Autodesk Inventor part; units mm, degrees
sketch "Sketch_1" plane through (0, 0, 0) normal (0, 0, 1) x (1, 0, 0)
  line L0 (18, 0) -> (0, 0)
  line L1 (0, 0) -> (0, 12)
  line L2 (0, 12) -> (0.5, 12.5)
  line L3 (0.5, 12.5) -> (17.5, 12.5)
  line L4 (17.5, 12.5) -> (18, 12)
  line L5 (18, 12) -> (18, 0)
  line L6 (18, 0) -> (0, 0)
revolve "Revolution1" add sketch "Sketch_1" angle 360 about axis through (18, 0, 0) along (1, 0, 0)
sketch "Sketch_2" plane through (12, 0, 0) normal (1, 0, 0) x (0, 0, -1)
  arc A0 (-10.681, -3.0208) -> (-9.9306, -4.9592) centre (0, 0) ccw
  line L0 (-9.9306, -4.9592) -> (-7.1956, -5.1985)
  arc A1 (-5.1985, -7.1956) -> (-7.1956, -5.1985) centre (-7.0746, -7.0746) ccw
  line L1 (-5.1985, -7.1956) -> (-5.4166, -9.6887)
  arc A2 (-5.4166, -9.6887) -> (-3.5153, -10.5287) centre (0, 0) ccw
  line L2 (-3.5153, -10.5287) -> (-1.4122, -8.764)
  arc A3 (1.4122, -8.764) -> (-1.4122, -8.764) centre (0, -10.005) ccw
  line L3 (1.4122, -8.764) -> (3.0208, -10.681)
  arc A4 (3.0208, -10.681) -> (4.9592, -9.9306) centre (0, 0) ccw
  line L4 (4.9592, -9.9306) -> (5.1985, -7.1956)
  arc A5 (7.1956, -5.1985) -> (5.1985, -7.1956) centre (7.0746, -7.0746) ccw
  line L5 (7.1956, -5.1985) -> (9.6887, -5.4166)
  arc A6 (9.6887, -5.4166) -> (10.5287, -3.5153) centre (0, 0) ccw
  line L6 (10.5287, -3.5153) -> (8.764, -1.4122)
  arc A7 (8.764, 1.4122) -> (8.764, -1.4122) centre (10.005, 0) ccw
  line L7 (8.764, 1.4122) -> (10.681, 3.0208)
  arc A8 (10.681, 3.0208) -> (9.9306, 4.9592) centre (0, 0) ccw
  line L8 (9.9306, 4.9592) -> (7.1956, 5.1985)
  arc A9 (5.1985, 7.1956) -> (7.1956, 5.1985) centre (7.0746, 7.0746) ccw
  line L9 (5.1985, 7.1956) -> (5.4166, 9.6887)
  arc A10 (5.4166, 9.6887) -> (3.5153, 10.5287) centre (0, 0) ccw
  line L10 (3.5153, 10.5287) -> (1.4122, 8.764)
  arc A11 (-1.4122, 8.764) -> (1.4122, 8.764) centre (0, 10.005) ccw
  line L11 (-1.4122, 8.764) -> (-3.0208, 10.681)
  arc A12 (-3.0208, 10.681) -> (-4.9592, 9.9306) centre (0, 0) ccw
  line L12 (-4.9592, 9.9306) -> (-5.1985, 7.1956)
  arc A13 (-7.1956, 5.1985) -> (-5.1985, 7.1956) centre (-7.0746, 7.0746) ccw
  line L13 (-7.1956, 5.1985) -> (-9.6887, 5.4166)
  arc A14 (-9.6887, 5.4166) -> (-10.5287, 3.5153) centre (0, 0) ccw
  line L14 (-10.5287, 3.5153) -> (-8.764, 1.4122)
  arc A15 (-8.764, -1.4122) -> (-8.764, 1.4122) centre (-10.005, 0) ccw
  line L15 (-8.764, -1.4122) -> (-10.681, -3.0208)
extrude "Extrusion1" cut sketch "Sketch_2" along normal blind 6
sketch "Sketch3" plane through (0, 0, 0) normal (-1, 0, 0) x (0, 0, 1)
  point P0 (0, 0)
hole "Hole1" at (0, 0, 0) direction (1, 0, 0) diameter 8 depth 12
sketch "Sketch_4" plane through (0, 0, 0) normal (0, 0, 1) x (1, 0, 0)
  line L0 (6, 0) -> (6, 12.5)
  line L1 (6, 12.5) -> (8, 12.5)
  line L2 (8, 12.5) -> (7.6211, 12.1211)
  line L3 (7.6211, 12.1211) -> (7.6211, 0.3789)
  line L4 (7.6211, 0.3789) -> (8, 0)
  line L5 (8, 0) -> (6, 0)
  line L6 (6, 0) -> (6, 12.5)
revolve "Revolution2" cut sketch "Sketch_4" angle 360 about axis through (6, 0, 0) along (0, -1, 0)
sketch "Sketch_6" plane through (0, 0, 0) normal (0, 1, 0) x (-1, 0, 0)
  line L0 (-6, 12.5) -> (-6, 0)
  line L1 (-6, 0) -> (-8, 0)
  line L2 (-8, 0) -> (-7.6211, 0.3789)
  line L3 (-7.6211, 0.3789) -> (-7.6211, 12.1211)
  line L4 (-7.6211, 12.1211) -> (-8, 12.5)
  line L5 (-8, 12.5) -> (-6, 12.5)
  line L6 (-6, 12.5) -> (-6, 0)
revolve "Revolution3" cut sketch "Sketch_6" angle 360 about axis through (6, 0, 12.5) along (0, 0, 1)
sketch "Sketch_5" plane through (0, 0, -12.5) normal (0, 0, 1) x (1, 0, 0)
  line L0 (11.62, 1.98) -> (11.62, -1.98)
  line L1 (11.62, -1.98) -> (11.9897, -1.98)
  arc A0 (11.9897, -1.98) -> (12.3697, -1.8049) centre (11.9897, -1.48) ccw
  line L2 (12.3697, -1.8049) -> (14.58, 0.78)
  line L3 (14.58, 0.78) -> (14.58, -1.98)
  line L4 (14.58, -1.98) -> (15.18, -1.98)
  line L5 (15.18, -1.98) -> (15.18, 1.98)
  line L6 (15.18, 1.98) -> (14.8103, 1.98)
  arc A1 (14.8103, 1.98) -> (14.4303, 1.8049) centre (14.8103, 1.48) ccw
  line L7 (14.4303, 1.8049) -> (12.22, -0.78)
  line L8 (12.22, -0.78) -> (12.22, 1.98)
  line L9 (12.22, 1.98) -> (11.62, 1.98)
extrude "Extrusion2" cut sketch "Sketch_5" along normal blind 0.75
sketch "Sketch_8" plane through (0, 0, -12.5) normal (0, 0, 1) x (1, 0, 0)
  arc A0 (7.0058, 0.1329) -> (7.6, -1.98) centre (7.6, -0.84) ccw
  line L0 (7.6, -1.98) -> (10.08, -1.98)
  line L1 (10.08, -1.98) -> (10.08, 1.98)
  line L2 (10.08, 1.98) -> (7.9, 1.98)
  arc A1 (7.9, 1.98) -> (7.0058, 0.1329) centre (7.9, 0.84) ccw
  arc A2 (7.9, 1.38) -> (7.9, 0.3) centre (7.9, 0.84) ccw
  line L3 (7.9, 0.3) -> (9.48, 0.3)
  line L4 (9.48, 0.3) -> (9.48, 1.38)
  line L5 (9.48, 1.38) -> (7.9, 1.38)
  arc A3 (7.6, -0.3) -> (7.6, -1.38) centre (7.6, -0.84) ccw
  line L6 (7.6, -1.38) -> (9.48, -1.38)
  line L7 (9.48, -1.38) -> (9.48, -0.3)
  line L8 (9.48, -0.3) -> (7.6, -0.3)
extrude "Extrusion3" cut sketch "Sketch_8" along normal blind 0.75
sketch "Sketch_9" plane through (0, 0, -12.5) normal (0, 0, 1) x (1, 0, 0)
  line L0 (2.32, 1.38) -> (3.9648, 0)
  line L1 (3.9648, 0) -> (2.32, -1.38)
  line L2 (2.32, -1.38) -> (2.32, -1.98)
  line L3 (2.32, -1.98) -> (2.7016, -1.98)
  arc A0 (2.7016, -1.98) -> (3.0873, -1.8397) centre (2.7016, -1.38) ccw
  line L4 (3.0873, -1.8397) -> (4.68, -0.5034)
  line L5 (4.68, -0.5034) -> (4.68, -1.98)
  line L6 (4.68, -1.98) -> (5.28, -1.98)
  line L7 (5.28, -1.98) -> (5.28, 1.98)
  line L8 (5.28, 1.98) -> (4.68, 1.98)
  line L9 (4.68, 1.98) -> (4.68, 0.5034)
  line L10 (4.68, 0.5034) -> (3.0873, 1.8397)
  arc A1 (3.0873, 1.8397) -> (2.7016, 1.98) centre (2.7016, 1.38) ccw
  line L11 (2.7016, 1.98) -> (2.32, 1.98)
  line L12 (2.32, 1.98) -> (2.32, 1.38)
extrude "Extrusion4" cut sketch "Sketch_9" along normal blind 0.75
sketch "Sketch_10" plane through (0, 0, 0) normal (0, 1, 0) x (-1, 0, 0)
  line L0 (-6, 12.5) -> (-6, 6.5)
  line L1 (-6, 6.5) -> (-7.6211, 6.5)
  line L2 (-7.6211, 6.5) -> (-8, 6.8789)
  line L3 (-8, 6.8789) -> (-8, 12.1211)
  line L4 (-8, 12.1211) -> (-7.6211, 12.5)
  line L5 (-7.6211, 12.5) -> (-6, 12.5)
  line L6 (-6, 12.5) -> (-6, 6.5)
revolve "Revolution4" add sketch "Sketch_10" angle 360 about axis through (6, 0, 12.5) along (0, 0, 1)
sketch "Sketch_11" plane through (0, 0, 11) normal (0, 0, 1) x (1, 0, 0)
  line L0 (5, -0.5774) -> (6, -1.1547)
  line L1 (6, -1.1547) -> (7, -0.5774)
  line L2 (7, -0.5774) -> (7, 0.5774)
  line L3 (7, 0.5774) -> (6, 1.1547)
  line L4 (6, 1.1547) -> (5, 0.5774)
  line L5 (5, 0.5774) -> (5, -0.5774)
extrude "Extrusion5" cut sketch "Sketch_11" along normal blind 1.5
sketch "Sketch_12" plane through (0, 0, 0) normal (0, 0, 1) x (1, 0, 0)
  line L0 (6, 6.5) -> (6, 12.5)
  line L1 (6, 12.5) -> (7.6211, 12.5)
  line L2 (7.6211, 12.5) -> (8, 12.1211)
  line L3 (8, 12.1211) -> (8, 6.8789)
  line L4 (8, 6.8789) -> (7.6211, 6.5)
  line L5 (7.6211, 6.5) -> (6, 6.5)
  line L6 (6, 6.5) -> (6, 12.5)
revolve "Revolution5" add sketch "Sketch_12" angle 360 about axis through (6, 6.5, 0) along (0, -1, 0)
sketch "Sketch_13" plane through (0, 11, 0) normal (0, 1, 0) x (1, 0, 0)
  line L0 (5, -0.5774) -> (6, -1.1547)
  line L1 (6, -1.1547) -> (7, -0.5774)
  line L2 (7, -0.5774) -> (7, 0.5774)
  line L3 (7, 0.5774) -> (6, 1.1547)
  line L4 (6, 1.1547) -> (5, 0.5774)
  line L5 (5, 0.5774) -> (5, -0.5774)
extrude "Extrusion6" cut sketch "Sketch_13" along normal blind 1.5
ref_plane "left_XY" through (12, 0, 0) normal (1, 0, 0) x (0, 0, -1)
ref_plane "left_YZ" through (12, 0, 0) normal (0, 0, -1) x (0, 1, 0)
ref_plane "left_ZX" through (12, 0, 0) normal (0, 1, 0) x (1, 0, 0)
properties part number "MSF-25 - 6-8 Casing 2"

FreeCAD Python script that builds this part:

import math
import FreeCAD as App
import Part
import Sketcher
Q = App.Units.Quantity

doc = App.newDocument("Part")
body = doc.addObject("PartDesign::Body", "Body")

# Sketch on XY plane
sketch1 = doc.addObject("Sketcher::SketchObject", "Sketch")
body.addObject(sketch1)
sketch1.AttachmentSupport = (doc.XY_Plane, [""])
sketch1.MapMode = "FlatFace"
sketch1.addGeometry(Part.LineSegment(App.Vector(0, 0, 0), App.Vector(18, 0, 0)), False)
sketch1.addGeometry(Part.LineSegment(App.Vector(18, 0, 0), App.Vector(18, 12, 0)), False)
sketch1.addGeometry(Part.LineSegment(App.Vector(18, 12, 0), App.Vector(17.5, 12.5, 0)), False)
sketch1.addGeometry(Part.LineSegment(App.Vector(17.5, 12.5, 0), App.Vector(0.5, 12.5, 0)), False)
sketch1.addGeometry(Part.LineSegment(App.Vector(0.5, 12.5, 0), App.Vector(0, 12, 0)), False)
sketch1.addGeometry(Part.LineSegment(App.Vector(0, 12, 0), App.Vector(0, 0, 0)), False)
sketch1.addConstraint(Sketcher.Constraint("Coincident", 0, 2, 1, 1))
sketch1.addConstraint(Sketcher.Constraint("Coincident", 1, 2, 2, 1))
sketch1.addConstraint(Sketcher.Constraint("Coincident", 2, 2, 3, 1))
sketch1.addConstraint(Sketcher.Constraint("Coincident", 3, 2, 4, 1))
sketch1.addConstraint(Sketcher.Constraint("Coincident", 4, 2, 5, 1))
sketch1.addConstraint(Sketcher.Constraint("Coincident", 5, 2, 0, 1))
sketch1.addConstraint(Sketcher.Constraint("Horizontal", 0))
sketch1.addConstraint(Sketcher.Constraint("Vertical", 1))
sketch1.addConstraint(Sketcher.Constraint("Horizontal", 3))
sketch1.addConstraint(Sketcher.Constraint("Vertical", 5))
sketch1.addConstraint(Sketcher.Constraint("Coincident", 5, 2, -1, 1))
sketch1.addConstraint(Sketcher.Constraint("Perpendicular", 2, 4))
sketch1.addConstraint(Sketcher.Constraint("Horizontal", 1, 2, 4, 2))
sketch1.addConstraint(Sketcher.Constraint("Equal", 2, 4))
sketch1.addConstraint(Sketcher.Constraint("DistanceX", 0, 1, 0, 2, 18.0))
sketch1.addConstraint(Sketcher.Constraint("DistanceX", 3, 2, 3, 1, 17.0))
sketch1.addConstraint(Sketcher.Constraint("DistanceY", 1, 1, 1, 2, 12.0))
revolution = doc.addObject("PartDesign::Revolution", "Revolution")
body.addObject(revolution)
revolution.Profile = sketch1
revolution.ReferenceAxis = (sketch1, ["H_Axis"])
revolution.Angle = 360

# Sketch on YZ plane
sketch2 = doc.addObject("Sketcher::SketchObject", "Sketch001")
body.addObject(sketch2)
sketch2.AttachmentSupport = (doc.YZ_Plane, [""])
sketch2.MapMode = "FlatFace"
sketch2.AttachmentOffset = App.Placement(App.Vector(0, 0, 12), App.Rotation())
sketch2.addGeometry(Part.LineSegment(App.Vector(-1.4122, 8.764, 0), App.Vector(-3.0208, 10.681, 0)), False)
sketch2.addGeometry(Part.ArcOfCircle(Part.Circle(App.Vector(0.002421, -0.007245, 0), App.Vector(0, 0, 1), 11.107586), math.radians(105.793809), math.radians(116.531364)), False)
sketch2.addGeometry(Part.LineSegment(App.Vector(-4.9592, 9.9306, 0), App.Vector(-5.1985, 7.1956, 0)), False)
sketch2.addGeometry(Part.ArcOfCircle(Part.Circle(App.Vector(-7.0746, 7.0746, 0), App.Vector(0, 0, 1), 1.879998), math.radians(-93.690209), math.radians(3.690209)), False)
sketch2.addGeometry(Part.LineSegment(App.Vector(-7.1956, 5.1985, 0), App.Vector(-9.6887, 5.4166, 0)), False)
sketch2.addGeometry(Part.ArcOfCircle(Part.Circle(App.Vector(0.001812, -0.000904, 0), App.Vector(0, 0, 1), 11.102044), math.radians(150.792521), math.radians(161.53551)), False)
sketch2.addGeometry(Part.LineSegment(App.Vector(-10.5287, 3.5153, 0), App.Vector(-8.764, 1.4122, 0)), False)
sketch2.addGeometry(Part.ArcOfCircle(Part.Circle(App.Vector(-10.005, 0, 0), App.Vector(0, 0, 1), 1.879997), math.radians(-48.691941), math.radians(48.691941)), False)
sketch2.addGeometry(Part.LineSegment(App.Vector(-8.764, -1.4122, 0), App.Vector(-10.681, -3.0208, 0)), False)
sketch2.addGeometry(Part.ArcOfCircle(Part.Circle(App.Vector(0.007245, 0.002421, 0), App.Vector(0, 0, 1), 11.107586), math.radians(-164.206191), math.radians(-153.468636)), False)
sketch2.addGeometry(Part.LineSegment(App.Vector(-9.9306, -4.9592, 0), App.Vector(-7.1956, -5.1985, 0)), False)
sketch2.addGeometry(Part.ArcOfCircle(Part.Circle(App.Vector(-7.0746, -7.0746, 0), App.Vector(0, 0, 1), 1.879998), math.radians(-3.690209), math.radians(93.690209)), False)
sketch2.addGeometry(Part.LineSegment(App.Vector(-5.1985, -7.1956, 0), App.Vector(-5.4166, -9.6887, 0)), False)
sketch2.addGeometry(Part.ArcOfCircle(Part.Circle(App.Vector(0.000904, 0.001812, 0), App.Vector(0, 0, 1), 11.102044), math.radians(-119.207479), math.radians(-108.46449)), False)
sketch2.addGeometry(Part.LineSegment(App.Vector(-3.5153, -10.5287, 0), App.Vector(-1.4122, -8.764, 0)), False)
sketch2.addGeometry(Part.ArcOfCircle(Part.Circle(App.Vector(0, -10.005, 0), App.Vector(0, 0, 1), 1.879997), math.radians(41.308059), math.radians(138.691941)), False)
sketch2.addGeometry(Part.LineSegment(App.Vector(1.4122, -8.764, 0), App.Vector(3.0208, -10.681, 0)), False)
sketch2.addGeometry(Part.ArcOfCircle(Part.Circle(App.Vector(-0.002421, 0.007245, 0), App.Vector(0, 0, 1), 11.107586), math.radians(-74.206191), math.radians(-63.468636)), False)
sketch2.addGeometry(Part.LineSegment(App.Vector(4.9592, -9.9306, 0), App.Vector(5.1985, -7.1956, 0)), False)
sketch2.addGeometry(Part.ArcOfCircle(Part.Circle(App.Vector(7.0746, -7.0746, 0), App.Vector(0, 0, 1), 1.879998), math.radians(86.309791), math.radians(183.690209)), False)
sketch2.addGeometry(Part.LineSegment(App.Vector(7.1956, -5.1985, 0), App.Vector(9.6887, -5.4166, 0)), False)
sketch2.addGeometry(Part.ArcOfCircle(Part.Circle(App.Vector(-0.001812, 0.000904, 0), App.Vector(0, 0, 1), 11.102044), math.radians(-29.207479), math.radians(-18.46449)), False)
sketch2.addGeometry(Part.LineSegment(App.Vector(10.5287, -3.5153, 0), App.Vector(8.764, -1.4122, 0)), False)
sketch2.addGeometry(Part.ArcOfCircle(Part.Circle(App.Vector(10.005, 0, 0), App.Vector(0, 0, 1), 1.879997), math.radians(131.308059), math.radians(228.691941)), False)
sketch2.addGeometry(Part.LineSegment(App.Vector(8.764, 1.4122, 0), App.Vector(10.681, 3.0208, 0)), False)
sketch2.addGeometry(Part.ArcOfCircle(Part.Circle(App.Vector(-0.007245, -0.002421, 0), App.Vector(0, 0, 1), 11.107586), math.radians(15.793809), math.radians(26.531364)), False)
sketch2.addGeometry(Part.LineSegment(App.Vector(9.9306, 4.9592, 0), App.Vector(7.1956, 5.1985, 0)), False)
sketch2.addGeometry(Part.ArcOfCircle(Part.Circle(App.Vector(7.0746, 7.0746, 0), App.Vector(0, 0, 1), 1.879998), math.radians(176.309791), math.radians(273.690209)), False)
sketch2.addGeometry(Part.LineSegment(App.Vector(5.1985, 7.1956, 0), App.Vector(5.4166, 9.6887, 0)), False)
sketch2.addGeometry(Part.ArcOfCircle(Part.Circle(App.Vector(-0.000904, -0.001812, 0), App.Vector(0, 0, 1), 11.102044), math.radians(60.792521), math.radians(71.53551)), False)
sketch2.addGeometry(Part.LineSegment(App.Vector(3.5153, 10.5287, 0), App.Vector(1.4122, 8.764, 0)), False)
sketch2.addGeometry(Part.ArcOfCircle(Part.Circle(App.Vector(0, 10.005, 0), App.Vector(0, 0, 1), 1.879997), math.radians(-138.691941), math.radians(-41.308059)), False)
sketch2.addConstraint(Sketcher.Constraint("Coincident", 0, 2, 1, 1))
sketch2.addConstraint(Sketcher.Constraint("Coincident", 1, 2, 2, 1))
sketch2.addConstraint(Sketcher.Constraint("Coincident", 2, 2, 3, 2))
sketch2.addConstraint(Sketcher.Constraint("Coincident", 3, 1, 4, 1))
sketch2.addConstraint(Sketcher.Constraint("Coincident", 4, 2, 5, 1))
sketch2.addConstraint(Sketcher.Constraint("Coincident", 5, 2, 6, 1))
sketch2.addConstraint(Sketcher.Constraint("Coincident", 6, 2, 7, 2))
sketch2.addConstraint(Sketcher.Constraint("Coincident", 7, 1, 8, 1))
sketch2.addConstraint(Sketcher.Constraint("Coincident", 8, 2, 9, 1))
sketch2.addConstraint(Sketcher.Constraint("Coincident", 9, 2, 10, 1))
sketch2.addConstraint(Sketcher.Constraint("Coincident", 10, 2, 11, 2))
sketch2.addConstraint(Sketcher.Constraint("Coincident", 11, 1, 12, 1))
sketch2.addConstraint(Sketcher.Constraint("Coincident", 12, 2, 13, 1))
sketch2.addConstraint(Sketcher.Constraint("Coincident", 13, 2, 14, 1))
sketch2.addConstraint(Sketcher.Constraint("Coincident", 14, 2, 15, 2))
sketch2.addConstraint(Sketcher.Constraint("Coincident", 15, 1, 16, 1))
sketch2.addConstraint(Sketcher.Constraint("Coincident", 16, 2, 17, 1))
sketch2.addConstraint(Sketcher.Constraint("Coincident", 17, 2, 18, 1))
sketch2.addConstraint(Sketcher.Constraint("Coincident", 18, 2, 19, 2))
sketch2.addConstraint(Sketcher.Constraint("Coincident", 19, 1, 20, 1))
sketch2.addConstraint(Sketcher.Constraint("Coincident", 20, 2, 21, 1))
sketch2.addConstraint(Sketcher.Constraint("Coincident", 21, 2, 22, 1))
sketch2.addConstraint(Sketcher.Constraint("Coincident", 22, 2, 23, 2))
sketch2.addConstraint(Sketcher.Constraint("Coincident", 23, 1, 24, 1))
sketch2.addConstraint(Sketcher.Constraint("Coincident", 24, 2, 25, 1))
sketch2.addConstraint(Sketcher.Constraint("Coincident", 25, 2, 26, 1))
sketch2.addConstraint(Sketcher.Constraint("Coincident", 26, 2, 27, 2))
sketch2.addConstraint(Sketcher.Constraint("Coincident", 27, 1, 28, 1))
sketch2.addConstraint(Sketcher.Constraint("Coincident", 28, 2, 29, 1))
sketch2.addConstraint(Sketcher.Constraint("Coincident", 29, 2, 30, 1))
sketch2.addConstraint(Sketcher.Constraint("Coincident", 30, 2, 31, 2))
sketch2.addConstraint(Sketcher.Constraint("Coincident", 31, 1, 0, 1))
sketch2.addConstraint(Sketcher.Constraint("Equal", 3, 7))
sketch2.addConstraint(Sketcher.Constraint("Equal", 1, 9))
sketch2.addConstraint(Sketcher.Constraint("Equal", 7, 11))
sketch2.addConstraint(Sketcher.Constraint("Equal", 5, 13))
sketch2.addConstraint(Sketcher.Constraint("Equal", 11, 15))
sketch2.addConstraint(Sketcher.Constraint("Equal", 9, 17))
sketch2.addConstraint(Sketcher.Constraint("Equal", 15, 19))
sketch2.addConstraint(Sketcher.Constraint("Equal", 13, 21))
sketch2.addConstraint(Sketcher.Constraint("Equal", 19, 23))
sketch2.addConstraint(Sketcher.Constraint("Equal", 17, 25))
sketch2.addConstraint(Sketcher.Constraint("Equal", 23, 27))
sketch2.addConstraint(Sketcher.Constraint("Equal", 21, 29))
sketch2.addConstraint(Sketcher.Constraint("Equal", 27, 31))
sketch2.addConstraint(Sketcher.Constraint("Symmetric", 1, 3, 17, 3, -1, 1))
sketch2.addConstraint(Sketcher.Constraint("Symmetric", 3, 3, 19, 3, -1, 1))
sketch2.addConstraint(Sketcher.Constraint("Symmetric", 5, 3, 21, 3, -1, 1))
sketch2.addConstraint(Sketcher.Constraint("Symmetric", 7, 3, 23, 3, -1, 1))
sketch2.addConstraint(Sketcher.Constraint("Symmetric", 9, 3, 25, 3, -1, 1))
sketch2.addConstraint(Sketcher.Constraint("Symmetric", 11, 3, 27, 3, -1, 1))
sketch2.addConstraint(Sketcher.Constraint("Symmetric", 13, 3, 29, 3, -1, 1))
sketch2.addConstraint(Sketcher.Constraint("Symmetric", 15, 3, 31, 3, -1, 1))
sketch2.addConstraint(Sketcher.Constraint("Symmetric", 11, 3, 19, 3, -2))
sketch2.addConstraint(Sketcher.Constraint("Symmetric", 14, 2, 15, 1, -2))
sketch2.addConstraint(Sketcher.Constraint("Symmetric", 7, 1, 22, 2, -2))
sketch2.addConstraint(Sketcher.Constraint("Perpendicular", 2, 4))
sketch2.addConstraint(Sketcher.Constraint("Parallel", 0, 6))
sketch2.addConstraint(Sketcher.Constraint("Perpendicular", 6, 8))
sketch2.addConstraint(Sketcher.Constraint("Parallel", 4, 10))
sketch2.addConstraint(Sketcher.Constraint("Perpendicular", 10, 12))
sketch2.addConstraint(Sketcher.Constraint("Parallel", 8, 14))
sketch2.addConstraint(Sketcher.Constraint("Perpendicular", 14, 16))
sketch2.addConstraint(Sketcher.Constraint("Parallel", 12, 18))
sketch2.addConstraint(Sketcher.Constraint("Perpendicular", 18, 20))
sketch2.addConstraint(Sketcher.Constraint("Parallel", 16, 22))
sketch2.addConstraint(Sketcher.Constraint("Perpendicular", 22, 24))
sketch2.addConstraint(Sketcher.Constraint("Parallel", 20, 26))
sketch2.addConstraint(Sketcher.Constraint("Perpendicular", 26, 28))
sketch2.addConstraint(Sketcher.Constraint("Parallel", 24, 30))
sketch2.addConstraint(Sketcher.Constraint("Horizontal", 11, 1, 18, 2))
sketch2.addConstraint(Sketcher.Constraint("Horizontal", 10, 2, 19, 1))
sketch2.addConstraint(Sketcher.Constraint("Horizontal", 6, 2, 23, 1))
sketch2.addConstraint(Sketcher.Constraint("Horizontal", 3, 1, 26, 2))
sketch2.addConstraint(Sketcher.Constraint("Horizontal", 2, 2, 27, 1))
sketch2.addConstraint(Sketcher.Constraint("Horizontal", 30, 2, 31, 1))
sketch2.addConstraint(Sketcher.Constraint("Vertical", 6, 2, 7, 1))
sketch2.addConstraint(Sketcher.Constraint("Vertical", 3, 1, 10, 2))
sketch2.addConstraint(Sketcher.Constraint("Vertical", 2, 2, 11, 1))
sketch2.addConstraint(Sketcher.Constraint("Vertical", 15, 1, 30, 2))
sketch2.addConstraint(Sketcher.Constraint("Equal", 0, 4))
sketch2.addConstraint(Sketcher.Constraint("Equal", 2, 6))
sketch2.addConstraint(Sketcher.Constraint("Equal", 4, 8))
sketch2.addConstraint(Sketcher.Constraint("Equal", 6, 10))
sketch2.addConstraint(Sketcher.Constraint("Equal", 8, 12))
sketch2.addConstraint(Sketcher.Constraint("Equal", 10, 14))
sketch2.addConstraint(Sketcher.Constraint("Angle", 0, Q("130.0008 deg")))
sketch2.addConstraint(Sketcher.Constraint("Angle", 2, Q("-95.0004 deg")))
sketch2.addConstraint(Sketcher.Constraint("Radius", 3, 1.88))
sketch2.addConstraint(Sketcher.Constraint("Radius", 5, 11.102))
sketch2.addConstraint(Sketcher.Constraint("Radius", 1, 11.1076))
sketch2.addConstraint(Sketcher.Constraint("DistanceX", 5, 2, 4, 2, 0.84))
sketch2.addConstraint(Sketcher.Constraint("DistanceY", 13, 2, 12, 2, 0.84))
sketch2.addConstraint(Sketcher.Constraint("DistanceY", 5, 3, -1, 1, 0.001))
sketch2.addConstraint(Sketcher.Constraint("DistanceX", 7, 3, -1, 1, 10.005))
sketch2.addConstraint(Sketcher.Constraint("DistanceX", -1, 1, 13, 3, 0.001))
sketch2.addConstraint(Sketcher.Constraint("DistanceY", 15, 3, -1, 1, 10.005))
sketch2.addConstraint(Sketcher.Constraint("DistanceY", -1, 1, 0, 2, 10.681))
sketch2.addConstraint(Sketcher.Constraint("DistanceX", 6, 2, -1, 1, 8.764))
sketch2.addConstraint(Sketcher.Constraint("DistanceX", 8, 2, -1, 1, 10.681))
sketch2.addConstraint(Sketcher.Constraint("DistanceX", 3, 3, 1, 3, 7.077))
pocket1 = doc.addObject("PartDesign::Pocket", "Pocket")
body.addObject(pocket1)
pocket1.Profile = sketch2
pocket1.Length = 6
pocket1.Reversed = True

# Sketch on YZ plane
sketch3 = doc.addObject("Sketcher::SketchObject", "Sketch002")
body.addObject(sketch3)
sketch3.AttachmentSupport = (doc.YZ_Plane, [""])
sketch3.MapMode = "FlatFace"
sketch3.addGeometry(Part.Circle(App.Vector(0, 0, 0), App.Vector(0, 0, 1), 4), False)
sketch3.addConstraint(Sketcher.Constraint("Coincident", 0, 3, -1, 1))
sketch3.addConstraint(Sketcher.Constraint("Diameter", 0, 8.0))
doc.recompute()
hole = doc.addObject("PartDesign::Hole", "Hole")
body.addObject(hole)
hole.Profile = sketch3
hole.ThreadType = "None"
hole.Diameter = 8
hole.DepthType = "Dimension"
hole.Depth = 12
hole.DrillPoint = "Flat"
hole.Reversed = True

# Sketch on XY plane
sketch4 = doc.addObject("Sketcher::SketchObject", "Sketch003")
body.addObject(sketch4)
sketch4.AttachmentSupport = (doc.XY_Plane, [""])
sketch4.MapMode = "FlatFace"
sketch4.addGeometry(Part.LineSegment(App.Vector(6, 12.5, 0), App.Vector(6, 0, 0)), False)
sketch4.addGeometry(Part.LineSegment(App.Vector(6, 0, 0), App.Vector(8, 0, 0)), False)
sketch4.addGeometry(Part.LineSegment(App.Vector(8, 0, 0), App.Vector(7.6, 0.4, 0)), False)
sketch4.addGeometry(Part.LineSegment(App.Vector(7.6, 0.4, 0), App.Vector(7.6, 12.1, 0)), False)
sketch4.addGeometry(Part.LineSegment(App.Vector(7.6, 12.1, 0), App.Vector(8, 12.5, 0)), False)
sketch4.addGeometry(Part.LineSegment(App.Vector(8, 12.5, 0), App.Vector(6, 12.5, 0)), False)
sketch4.addGeometry(Part.LineSegment(App.Vector(6, 12.5, 0), App.Vector(6, 0, 0)), True)  # axis
sketch4.addConstraint(Sketcher.Constraint("Coincident", 0, 2, 1, 1))
sketch4.addConstraint(Sketcher.Constraint("Coincident", 1, 2, 2, 1))
sketch4.addConstraint(Sketcher.Constraint("Coincident", 2, 2, 3, 1))
sketch4.addConstraint(Sketcher.Constraint("Coincident", 3, 2, 4, 1))
sketch4.addConstraint(Sketcher.Constraint("Coincident", 4, 2, 5, 1))
sketch4.addConstraint(Sketcher.Constraint("Coincident", 5, 2, 0, 1))
sketch4.addConstraint(Sketcher.Constraint("Vertical", 0))
sketch4.addConstraint(Sketcher.Constraint("Horizontal", 1))
sketch4.addConstraint(Sketcher.Constraint("Vertical", 3))
sketch4.addConstraint(Sketcher.Constraint("Horizontal", 5))
sketch4.addConstraint(Sketcher.Constraint("Vertical", 6))
sketch4.addConstraint(Sketcher.Constraint("Coincident", 6, 1, 5, 2))
sketch4.addConstraint(Sketcher.Constraint("PointOnObject", 0, 2, -1))
sketch4.addConstraint(Sketcher.Constraint("PointOnObject", 6, 2, -1))
sketch4.addConstraint(Sketcher.Constraint("Perpendicular", 2, 4))
sketch4.addConstraint(Sketcher.Constraint("Vertical", 1, 2, 4, 2))
sketch4.addConstraint(Sketcher.Constraint("Equal", 2, 4))
sketch4.addConstraint(Sketcher.Constraint("DistanceX", 1, 1, 1, 2, 2.0))
sketch4.addConstraint(Sketcher.Constraint("DistanceY", 0, 2, 0, 1, 12.5))
sketch4.addConstraint(Sketcher.Constraint("DistanceX", -1, 1, 0, 2, 6.0))
sketch4.addConstraint(Sketcher.Constraint("DistanceY", 3, 1, 3, 2, 11.7422))
groove = doc.addObject("PartDesign::Groove", "Groove")
body.addObject(groove)
groove.Profile = sketch4
groove.ReferenceAxis = (sketch4, ["Axis0"])
groove.Angle = 360

# Sketch on XZ plane
sketch5 = doc.addObject("Sketcher::SketchObject", "Sketch004")
body.addObject(sketch5)
sketch5.AttachmentSupport = (doc.XZ_Plane, [""])
sketch5.MapMode = "FlatFace"
sketch5.addGeometry(Part.LineSegment(App.Vector(6, 0, 0), App.Vector(6, 12.5, 0)), False)
sketch5.addGeometry(Part.LineSegment(App.Vector(6, 12.5, 0), App.Vector(8, 12.5, 0)), False)
sketch5.addGeometry(Part.LineSegment(App.Vector(8, 12.5, 0), App.Vector(7.6, 12.1, 0)), False)
sketch5.addGeometry(Part.LineSegment(App.Vector(7.6, 12.1, 0), App.Vector(7.6, 0.4, 0)), False)
sketch5.addGeometry(Part.LineSegment(App.Vector(7.6, 0.4, 0), App.Vector(8, 0, 0)), False)
sketch5.addGeometry(Part.LineSegment(App.Vector(8, 0, 0), App.Vector(6, 0, 0)), False)
sketch5.addGeometry(Part.LineSegment(App.Vector(6, 0, 0), App.Vector(6, 12.5, 0)), True)  # axis
sketch5.addConstraint(Sketcher.Constraint("Coincident", 0, 2, 1, 1))
sketch5.addConstraint(Sketcher.Constraint("Coincident", 1, 2, 2, 1))
sketch5.addConstraint(Sketcher.Constraint("Coincident", 2, 2, 3, 1))
sketch5.addConstraint(Sketcher.Constraint("Coincident", 3, 2, 4, 1))
sketch5.addConstraint(Sketcher.Constraint("Coincident", 4, 2, 5, 1))
sketch5.addConstraint(Sketcher.Constraint("Coincident", 5, 2, 0, 1))
sketch5.addConstraint(Sketcher.Constraint("Vertical", 0))
sketch5.addConstraint(Sketcher.Constraint("Horizontal", 1))
sketch5.addConstraint(Sketcher.Constraint("Vertical", 3))
sketch5.addConstraint(Sketcher.Constraint("Horizontal", 5))
sketch5.addConstraint(Sketcher.Constraint("Vertical", 6))
sketch5.addConstraint(Sketcher.Constraint("Coincident", 6, 1, 5, 2))
sketch5.addConstraint(Sketcher.Constraint("PointOnObject", 4, 2, -1))
sketch5.addConstraint(Sketcher.Constraint("Perpendicular", 2, 4))
sketch5.addConstraint(Sketcher.Constraint("Horizontal", 1, 2, 6, 2))
sketch5.addConstraint(Sketcher.Constraint("Vertical", 1, 2, 4, 2))
sketch5.addConstraint(Sketcher.Constraint("Equal", 2, 4))
sketch5.addConstraint(Sketcher.Constraint("DistanceX", 1, 1, 1, 2, 2.0))
sketch5.addConstraint(Sketcher.Constraint("DistanceY", 0, 1, 0, 2, 12.5))
sketch5.addConstraint(Sketcher.Constraint("DistanceX", -1, 1, 0, 2, 6.0))
sketch5.addConstraint(Sketcher.Constraint("DistanceY", 3, 2, 3, 1, 11.7422))
groove2 = doc.addObject("PartDesign::Groove", "Groove001")
body.addObject(groove2)
groove2.Profile = sketch5
groove2.ReferenceAxis = (sketch5, ["Axis0"])
groove2.Angle = 360

# Sketch on XY plane
sketch6 = doc.addObject("Sketcher::SketchObject", "Sketch005")
body.addObject(sketch6)
sketch6.AttachmentSupport = (doc.XY_Plane, [""])
sketch6.MapMode = "FlatFace"
sketch6.AttachmentOffset = App.Placement(App.Vector(0, 0, -12.5), App.Rotation())
sketch6.addGeometry(Part.LineSegment(App.Vector(12.22, 1.98, 0), App.Vector(11.62, 1.98, 0)), False)
sketch6.addGeometry(Part.LineSegment(App.Vector(11.62, 1.98, 0), App.Vector(11.62, -1.98, 0)), False)
sketch6.addGeometry(Part.LineSegment(App.Vector(11.62, -1.98, 0), App.Vector(11.99, -1.98, 0)), False)
sketch6.addGeometry(Part.ArcOfCircle(Part.Circle(App.Vector(11.99, -1.48, 0), App.Vector(0, 0, 1), 0.5), math.radians(-90), math.radians(-41)), False)
sketch6.addGeometry(Part.LineSegment(App.Vector(12.37, -1.8, 0), App.Vector(14.58, 0.78, 0)), False)
sketch6.addGeometry(Part.LineSegment(App.Vector(14.58, 0.78, 0), App.Vector(14.58, -1.98, 0)), False)
sketch6.addGeometry(Part.LineSegment(App.Vector(14.58, -1.98, 0), App.Vector(15.18, -1.98, 0)), False)
sketch6.addGeometry(Part.LineSegment(App.Vector(15.18, -1.98, 0), App.Vector(15.18, 1.98, 0)), False)
sketch6.addGeometry(Part.LineSegment(App.Vector(15.18, 1.98, 0), App.Vector(14.81, 1.98, 0)), False)
sketch6.addGeometry(Part.ArcOfCircle(Part.Circle(App.Vector(14.81, 1.48, 0), App.Vector(0, 0, 1), 0.5), math.radians(90), math.radians(139)), False)
sketch6.addGeometry(Part.LineSegment(App.Vector(14.43, 1.8, 0), App.Vector(12.22, -0.78, 0)), False)
sketch6.addGeometry(Part.LineSegment(App.Vector(12.22, -0.78, 0), App.Vector(12.22, 1.98, 0)), False)
sketch6.addConstraint(Sketcher.Constraint("Coincident", 0, 2, 1, 1))
sketch6.addConstraint(Sketcher.Constraint("Coincident", 1, 2, 2, 1))
sketch6.addConstraint(Sketcher.Constraint("Tangent", 2, 2, 3, 1))
sketch6.addConstraint(Sketcher.Constraint("Tangent", 3, 2, 4, 1))
sketch6.addConstraint(Sketcher.Constraint("Coincident", 4, 2, 5, 1))
sketch6.addConstraint(Sketcher.Constraint("Coincident", 5, 2, 6, 1))
sketch6.addConstraint(Sketcher.Constraint("Coincident", 6, 2, 7, 1))
sketch6.addConstraint(Sketcher.Constraint("Coincident", 7, 2, 8, 1))
sketch6.addConstraint(Sketcher.Constraint("Tangent", 8, 2, 9, 1))
sketch6.addConstraint(Sketcher.Constraint("Tangent", 9, 2, 10, 1))
sketch6.addConstraint(Sketcher.Constraint("Coincident", 10, 2, 11, 1))
sketch6.addConstraint(Sketcher.Constraint("Coincident", 11, 2, 0, 1))
sketch6.addConstraint(Sketcher.Constraint("Horizontal", 0))
sketch6.addConstraint(Sketcher.Constraint("Vertical", 1))
sketch6.addConstraint(Sketcher.Constraint("Horizontal", 2))
sketch6.addConstraint(Sketcher.Constraint("Vertical", 5))
sketch6.addConstraint(Sketcher.Constraint("Horizontal", 6))
sketch6.addConstraint(Sketcher.Constraint("Vertical", 7))
sketch6.addConstraint(Sketcher.Constraint("Horizontal", 8))
sketch6.addConstraint(Sketcher.Constraint("Vertical", 11))
sketch6.addConstraint(Sketcher.Constraint("Equal", 3, 9))
sketch6.addConstraint(Sketcher.Constraint("Parallel", 4, 10))
sketch6.addConstraint(Sketcher.Constraint("Horizontal", 2, 2, 5, 2))
sketch6.addConstraint(Sketcher.Constraint("Horizontal", 0, 2, 7, 2))
sketch6.addConstraint(Sketcher.Constraint("Equal", 0, 6))
sketch6.addConstraint(Sketcher.Constraint("Equal", 2, 8))
sketch6.addConstraint(Sketcher.Constraint("Radius", 3, 0.5))
sketch6.addConstraint(Sketcher.Constraint("DistanceX", 0, 2, 0, 1, 0.6))
sketch6.addConstraint(Sketcher.Constraint("DistanceY", 1, 2, 1, 1, 3.96))
sketch6.addConstraint(Sketcher.Constraint("DistanceY", 5, 2, 5, 1, 2.76))
sketch6.addConstraint(Sketcher.Constraint("DistanceY", 3, 3, -1, 1, 1.48))
sketch6.addConstraint(Sketcher.Constraint("DistanceX", -1, 1, 0, 2, 11.62))
sketch6.addConstraint(Sketcher.Constraint("DistanceX", -1, 1, 4, 2, 14.58))
sketch6.addConstraint(Sketcher.Constraint("DistanceX", 2, 2, 3, 2, 0.38))
pocket2 = doc.addObject("PartDesign::Pocket", "Pocket001")
body.addObject(pocket2)
pocket2.Profile = sketch6
pocket2.Length = 0.75
pocket2.Reversed = True

# Sketch on XY plane
sketch7 = doc.addObject("Sketcher::SketchObject", "Sketch006")
body.addObject(sketch7)
sketch7.AttachmentSupport = (doc.XY_Plane, [""])
sketch7.MapMode = "FlatFace"
sketch7.AttachmentOffset = App.Placement(App.Vector(0, 0, -12.5), App.Rotation())
sketch7.addGeometry(Part.ArcOfCircle(Part.Circle(App.Vector(7.9, 0.8, 0), App.Vector(0, 0, 1), 1.1), math.radians(90), math.radians(218)), False)
sketch7.addGeometry(Part.ArcOfCircle(Part.Circle(App.Vector(7.6, -0.8, 0), App.Vector(0, 0, 1), 1.1), math.radians(121), math.radians(270)), False)
sketch7.addGeometry(Part.LineSegment(App.Vector(7.6, -2, 0), App.Vector(10.1, -2, 0)), False)
sketch7.addGeometry(Part.LineSegment(App.Vector(10.1, -2, 0), App.Vector(10.1, 2, 0)), False)
sketch7.addGeometry(Part.LineSegment(App.Vector(10.1, 2, 0), App.Vector(7.9, 2, 0)), False)
sketch7.addGeometry(Part.ArcOfCircle(Part.Circle(App.Vector(7.6, -0.8, 0), App.Vector(0, 0, 1), 0.5), math.radians(90), math.radians(270)), False)
sketch7.addGeometry(Part.LineSegment(App.Vector(7.6, -0.3, 0), App.Vector(9.5, -0.3, 0)), False)
sketch7.addGeometry(Part.LineSegment(App.Vector(9.5, -0.3, 0), App.Vector(9.5, -1.4, 0)), False)
sketch7.addGeometry(Part.LineSegment(App.Vector(9.5, -1.4, 0), App.Vector(7.6, -1.4, 0)), False)
sketch7.addGeometry(Part.ArcOfCircle(Part.Circle(App.Vector(7.9, 0.8, 0), App.Vector(0, 0, 1), 0.5), math.radians(90), math.radians(270)), False)
sketch7.addGeometry(Part.LineSegment(App.Vector(7.9, 1.4, 0), App.Vector(9.5, 1.4, 0)), False)
sketch7.addGeometry(Part.LineSegment(App.Vector(9.5, 1.4, 0), App.Vector(9.5, 0.3, 0)), False)
sketch7.addGeometry(Part.LineSegment(App.Vector(9.5, 0.3, 0), App.Vector(7.9, 0.3, 0)), False)
sketch7.addConstraint(Sketcher.Constraint("Coincident", 0, 2, 1, 1))
sketch7.addConstraint(Sketcher.Constraint("Tangent", 1, 2, 2, 1))
sketch7.addConstraint(Sketcher.Constraint("Coincident", 2, 2, 3, 1))
sketch7.addConstraint(Sketcher.Constraint("Coincident", 3, 2, 4, 1))
sketch7.addConstraint(Sketcher.Constraint("Tangent", 4, 2, 0, 1))
sketch7.addConstraint(Sketcher.Constraint("Tangent", 5, 1, 6, 1))
sketch7.addConstraint(Sketcher.Constraint("Coincident", 6, 2, 7, 1))
sketch7.addConstraint(Sketcher.Constraint("Coincident", 7, 2, 8, 1))
sketch7.addConstraint(Sketcher.Constraint("Tangent", 8, 2, 5, 2))
sketch7.addConstraint(Sketcher.Constraint("Tangent", 9, 1, 10, 1))
sketch7.addConstraint(Sketcher.Constraint("Coincident", 10, 2, 11, 1))
sketch7.addConstraint(Sketcher.Constraint("Coincident", 11, 2, 12, 1))
sketch7.addConstraint(Sketcher.Constraint("Tangent", 12, 2, 9, 2))
sketch7.addConstraint(Sketcher.Constraint("Horizontal", 2))
sketch7.addConstraint(Sketcher.Constraint("Vertical", 3))
sketch7.addConstraint(Sketcher.Constraint("Horizontal", 4))
sketch7.addConstraint(Sketcher.Constraint("Horizontal", 6))
sketch7.addConstraint(Sketcher.Constraint("Vertical", 7))
sketch7.addConstraint(Sketcher.Constraint("Horizontal", 8))
sketch7.addConstraint(Sketcher.Constraint("Horizontal", 10))
sketch7.addConstraint(Sketcher.Constraint("Vertical", 11))
sketch7.addConstraint(Sketcher.Constraint("Horizontal", 12))
sketch7.addConstraint(Sketcher.Constraint("Coincident", 5, 3, 1, 3))
sketch7.addConstraint(Sketcher.Constraint("Coincident", 9, 3, 0, 3))
sketch7.addConstraint(Sketcher.Constraint("Equal", 0, 1))
sketch7.addConstraint(Sketcher.Constraint("Equal", 5, 9))
sketch7.addConstraint(Sketcher.Constraint("Symmetric", 7, 2, 10, 2, -1))
sketch7.addConstraint(Sketcher.Constraint("Radius", 0, 1.14))
sketch7.addConstraint(Sketcher.Constraint("Radius", 5, 0.54))
sketch7.addConstraint(Sketcher.Constraint("DistanceX", 2, 1, 2, 2, 2.48))
sketch7.addConstraint(Sketcher.Constraint("DistanceX", 4, 2, 4, 1, 2.18))
sketch7.addConstraint(Sketcher.Constraint("DistanceX", 6, 1, 6, 2, 1.88))
sketch7.addConstraint(Sketcher.Constraint("DistanceY", 3, 1, 3, 2, 3.96))
sketch7.addConstraint(Sketcher.Constraint("DistanceX", -1, 1, 0, 3, 7.9))
pocket3 = doc.addObject("PartDesign::Pocket", "Pocket002")
body.addObject(pocket3)
pocket3.Profile = sketch7
pocket3.Length = 0.75
pocket3.Reversed = True

# Sketch on XY plane
sketch8 = doc.addObject("Sketcher::SketchObject", "Sketch007")
body.addObject(sketch8)
sketch8.AttachmentSupport = (doc.XY_Plane, [""])
sketch8.MapMode = "FlatFace"
sketch8.AttachmentOffset = App.Placement(App.Vector(0, 0, -12.5), App.Rotation())
sketch8.addGeometry(Part.LineSegment(App.Vector(2.32, 1.98, 0), App.Vector(2.32, 1.38, 0)), False)
sketch8.addGeometry(Part.LineSegment(App.Vector(2.32, 1.38, 0), App.Vector(3.96, 0, 0)), False)
sketch8.addGeometry(Part.LineSegment(App.Vector(3.96, 0, 0), App.Vector(2.32, -1.38, 0)), False)
sketch8.addGeometry(Part.LineSegment(App.Vector(2.32, -1.38, 0), App.Vector(2.32, -1.98, 0)), False)
sketch8.addGeometry(Part.LineSegment(App.Vector(2.32, -1.98, 0), App.Vector(2.7, -1.98, 0)), False)
sketch8.addGeometry(Part.ArcOfCircle(Part.Circle(App.Vector(2.7, -1.38, 0), App.Vector(0, 0, 1), 0.6), math.radians(-90), math.radians(-50)), False)
sketch8.addGeometry(Part.LineSegment(App.Vector(3.09, -1.84, 0), App.Vector(4.68, -0.5, 0)), False)
sketch8.addGeometry(Part.LineSegment(App.Vector(4.68, -0.5, 0), App.Vector(4.68, -1.98, 0)), False)
sketch8.addGeometry(Part.LineSegment(App.Vector(4.68, -1.98, 0), App.Vector(5.28, -1.98, 0)), False)
sketch8.addGeometry(Part.LineSegment(App.Vector(5.28, -1.98, 0), App.Vector(5.28, 1.98, 0)), False)
sketch8.addGeometry(Part.LineSegment(App.Vector(5.28, 1.98, 0), App.Vector(4.68, 1.98, 0)), False)
sketch8.addGeometry(Part.LineSegment(App.Vector(4.68, 1.98, 0), App.Vector(4.68, 0.5, 0)), False)
sketch8.addGeometry(Part.LineSegment(App.Vector(4.68, 0.5, 0), App.Vector(3.09, 1.84, 0)), False)
sketch8.addGeometry(Part.ArcOfCircle(Part.Circle(App.Vector(2.7, 1.38, 0), App.Vector(0, 0, 1), 0.6), math.radians(50), math.radians(90)), False)
sketch8.addGeometry(Part.LineSegment(App.Vector(2.7, 1.98, 0), App.Vector(2.32, 1.98, 0)), False)
sketch8.addConstraint(Sketcher.Constraint("Coincident", 0, 2, 1, 1))
sketch8.addConstraint(Sketcher.Constraint("Coincident", 1, 2, 2, 1))
sketch8.addConstraint(Sketcher.Constraint("Coincident", 2, 2, 3, 1))
sketch8.addConstraint(Sketcher.Constraint("Coincident", 3, 2, 4, 1))
sketch8.addConstraint(Sketcher.Constraint("Tangent", 4, 2, 5, 1))
sketch8.addConstraint(Sketcher.Constraint("Tangent", 5, 2, 6, 1))
sketch8.addConstraint(Sketcher.Constraint("Coincident", 6, 2, 7, 1))
sketch8.addConstraint(Sketcher.Constraint("Coincident", 7, 2, 8, 1))
sketch8.addConstraint(Sketcher.Constraint("Coincident", 8, 2, 9, 1))
sketch8.addConstraint(Sketcher.Constraint("Coincident", 9, 2, 10, 1))
sketch8.addConstraint(Sketcher.Constraint("Coincident", 10, 2, 11, 1))
sketch8.addConstraint(Sketcher.Constraint("Coincident", 11, 2, 12, 1))
sketch8.addConstraint(Sketcher.Constraint("Tangent", 12, 2, 13, 1))
sketch8.addConstraint(Sketcher.Constraint("Tangent", 13, 2, 14, 1))
sketch8.addConstraint(Sketcher.Constraint("Coincident", 14, 2, 0, 1))
sketch8.addConstraint(Sketcher.Constraint("Vertical", 0))
sketch8.addConstraint(Sketcher.Constraint("Vertical", 3))
sketch8.addConstraint(Sketcher.Constraint("Horizontal", 4))
sketch8.addConstraint(Sketcher.Constraint("Vertical", 7))
sketch8.addConstraint(Sketcher.Constraint("Horizontal", 8))
sketch8.addConstraint(Sketcher.Constraint("Vertical", 9))
sketch8.addConstraint(Sketcher.Constraint("Horizontal", 10))
sketch8.addConstraint(Sketcher.Constraint("Vertical", 11))
sketch8.addConstraint(Sketcher.Constraint("Horizontal", 14))
sketch8.addConstraint(Sketcher.Constraint("Equal", 5, 13))
sketch8.addConstraint(Sketcher.Constraint("Symmetric", 5, 3, 13, 3, -1))
sketch8.addConstraint(Sketcher.Constraint("Symmetric", 0, 2, 2, 2, -1))
sketch8.addConstraint(Sketcher.Constraint("Symmetric", 7, 2, 10, 2, -1))
sketch8.addConstraint(Sketcher.Constraint("PointOnObject", 1, 2, -1))
sketch8.addConstraint(Sketcher.Constraint("Parallel", 2, 6))
sketch8.addConstraint(Sketcher.Constraint("Parallel", 1, 12))
sketch8.addConstraint(Sketcher.Constraint("Horizontal", 13, 3, 0, 2))
sketch8.addConstraint(Sketcher.Constraint("Horizontal", 4, 2, 7, 2))
sketch8.addConstraint(Sketcher.Constraint("Equal", 10, 0))
sketch8.addConstraint(Sketcher.Constraint("Radius", 5, 0.6))
sketch8.addConstraint(Sketcher.Constraint("DistanceY", 9, 1, 9, 2, 3.96))
sketch8.addConstraint(Sketcher.Constraint("DistanceX", -1, 1, 0, 2, 2.32))
sketch8.addConstraint(Sketcher.Constraint("DistanceX", -1, 1, 6, 2, 4.68))
sketch8.addConstraint(Sketcher.Constraint("Distance", 1, 2.147))
sketch8.addConstraint(Sketcher.Constraint("Distance", 6, 2.079))
pocket4 = doc.addObject("PartDesign::Pocket", "Pocket003")
body.addObject(pocket4)
pocket4.Profile = sketch8
pocket4.Length = 0.75
pocket4.Reversed = True

# Sketch on XZ plane
sketch9 = doc.addObject("Sketcher::SketchObject", "Sketch008")
body.addObject(sketch9)
sketch9.AttachmentSupport = (doc.XZ_Plane, [""])
sketch9.MapMode = "FlatFace"
sketch9.addGeometry(Part.LineSegment(App.Vector(6, 6.5, 0), App.Vector(6, 12.5, 0)), False)
sketch9.addGeometry(Part.LineSegment(App.Vector(6, 12.5, 0), App.Vector(7.6, 12.5, 0)), False)
sketch9.addGeometry(Part.LineSegment(App.Vector(7.6, 12.5, 0), App.Vector(8, 12.1, 0)), False)
sketch9.addGeometry(Part.LineSegment(App.Vector(8, 12.1, 0), App.Vector(8, 6.9, 0)), False)
sketch9.addGeometry(Part.LineSegment(App.Vector(8, 6.9, 0), App.Vector(7.6, 6.5, 0)), False)
sketch9.addGeometry(Part.LineSegment(App.Vector(7.6, 6.5, 0), App.Vector(6, 6.5, 0)), False)
sketch9.addGeometry(Part.LineSegment(App.Vector(6, 6.5, 0), App.Vector(6, 12.5, 0)), True)  # axis
sketch9.addConstraint(Sketcher.Constraint("Coincident", 0, 2, 1, 1))
sketch9.addConstraint(Sketcher.Constraint("Coincident", 1, 2, 2, 1))
sketch9.addConstraint(Sketcher.Constraint("Coincident", 2, 2, 3, 1))
sketch9.addConstraint(Sketcher.Constraint("Coincident", 3, 2, 4, 1))
sketch9.addConstraint(Sketcher.Constraint("Coincident", 4, 2, 5, 1))
sketch9.addConstraint(Sketcher.Constraint("Coincident", 5, 2, 0, 1))
sketch9.addConstraint(Sketcher.Constraint("Vertical", 0))
sketch9.addConstraint(Sketcher.Constraint("Horizontal", 1))
sketch9.addConstraint(Sketcher.Constraint("Vertical", 3))
sketch9.addConstraint(Sketcher.Constraint("Horizontal", 5))
sketch9.addConstraint(Sketcher.Constraint("Vertical", 6))
sketch9.addConstraint(Sketcher.Constraint("Coincident", 6, 1, 5, 2))
sketch9.addConstraint(Sketcher.Constraint("Perpendicular", 2, 4))
sketch9.addConstraint(Sketcher.Constraint("Horizontal", 1, 2, 6, 2))
sketch9.addConstraint(Sketcher.Constraint("Vertical", 1, 2, 4, 2))
sketch9.addConstraint(Sketcher.Constraint("Equal", 2, 4))
sketch9.addConstraint(Sketcher.Constraint("DistanceY", 0, 1, 0, 2, 6.0))
sketch9.addConstraint(Sketcher.Constraint("DistanceX", -1, 1, 0, 2, 6.0))
sketch9.addConstraint(Sketcher.Constraint("DistanceX", -1, 1, 2, 2, 8.0))
sketch9.addConstraint(Sketcher.Constraint("DistanceY", -1, 1, 0, 2, 12.5))
sketch9.addConstraint(Sketcher.Constraint("DistanceX", 1, 1, 1, 2, 1.621))
revolution2 = doc.addObject("PartDesign::Revolution", "Revolution001")
body.addObject(revolution2)
revolution2.Profile = sketch9
revolution2.ReferenceAxis = (sketch9, ["Axis0"])
revolution2.Angle = 360

# Sketch on XY plane
sketch10 = doc.addObject("Sketcher::SketchObject", "Sketch009")
body.addObject(sketch10)
sketch10.AttachmentSupport = (doc.XY_Plane, [""])
sketch10.MapMode = "FlatFace"
sketch10.AttachmentOffset = App.Placement(App.Vector(0, 0, 11), App.Rotation())
sketch10.addGeometry(Part.LineSegment(App.Vector(5, 0.6, 0), App.Vector(5, -0.6, 0)), False)
sketch10.addGeometry(Part.LineSegment(App.Vector(5, -0.6, 0), App.Vector(6, -1.2, 0)), False)
sketch10.addGeometry(Part.LineSegment(App.Vector(6, -1.2, 0), App.Vector(7, -0.6, 0)), False)
sketch10.addGeometry(Part.LineSegment(App.Vector(7, -0.6, 0), App.Vector(7, 0.6, 0)), False)
sketch10.addGeometry(Part.LineSegment(App.Vector(7, 0.6, 0), App.Vector(6, 1.2, 0)), False)
sketch10.addGeometry(Part.LineSegment(App.Vector(6, 1.2, 0), App.Vector(5, 0.6, 0)), False)
sketch10.addConstraint(Sketcher.Constraint("Coincident", 0, 2, 1, 1))
sketch10.addConstraint(Sketcher.Constraint("Coincident", 1, 2, 2, 1))
sketch10.addConstraint(Sketcher.Constraint("Coincident", 2, 2, 3, 1))
sketch10.addConstraint(Sketcher.Constraint("Coincident", 3, 2, 4, 1))
sketch10.addConstraint(Sketcher.Constraint("Coincident", 4, 2, 5, 1))
sketch10.addConstraint(Sketcher.Constraint("Coincident", 5, 2, 0, 1))
sketch10.addConstraint(Sketcher.Constraint("Vertical", 0))
sketch10.addConstraint(Sketcher.Constraint("Vertical", 3))
sketch10.addConstraint(Sketcher.Constraint("Symmetric", 1, 2, 4, 2, -1))
sketch10.addConstraint(Sketcher.Constraint("Parallel", 1, 4))
sketch10.addConstraint(Sketcher.Constraint("Parallel", 2, 5))
sketch10.addConstraint(Sketcher.Constraint("Horizontal", 0, 2, 2, 2))
sketch10.addConstraint(Sketcher.Constraint("Horizontal", 3, 2, 5, 2))
sketch10.addConstraint(Sketcher.Constraint("DistanceX", -1, 1, 0, 2, 5.0))
sketch10.addConstraint(Sketcher.Constraint("DistanceX", -1, 1, 1, 2, 6.0))
sketch10.addConstraint(Sketcher.Constraint("DistanceY", 0, 2, 0, 1, 1.1548))
sketch10.addConstraint(Sketcher.Constraint("DistanceY", 1, 2, 3, 2, 1.732))
pocket5 = doc.addObject("PartDesign::Pocket", "Pocket004")
body.addObject(pocket5)
pocket5.Profile = sketch10
pocket5.Length = 1.5
pocket5.Reversed = True

# Sketch on XY plane
sketch11 = doc.addObject("Sketcher::SketchObject", "Sketch010")
body.addObject(sketch11)
sketch11.AttachmentSupport = (doc.XY_Plane, [""])
sketch11.MapMode = "FlatFace"
sketch11.addGeometry(Part.LineSegment(App.Vector(6, 12.5, 0), App.Vector(6, 6.5, 0)), False)
sketch11.addGeometry(Part.LineSegment(App.Vector(6, 6.5, 0), App.Vector(7.6, 6.5, 0)), False)
sketch11.addGeometry(Part.LineSegment(App.Vector(7.6, 6.5, 0), App.Vector(8, 6.9, 0)), False)
sketch11.addGeometry(Part.LineSegment(App.Vector(8, 6.9, 0), App.Vector(8, 12.1, 0)), False)
sketch11.addGeometry(Part.LineSegment(App.Vector(8, 12.1, 0), App.Vector(7.6, 12.5, 0)), False)
sketch11.addGeometry(Part.LineSegment(App.Vector(7.6, 12.5, 0), App.Vector(6, 12.5, 0)), False)
sketch11.addGeometry(Part.LineSegment(App.Vector(6, 12.5, 0), App.Vector(6, 6.5, 0)), True)  # axis
sketch11.addConstraint(Sketcher.Constraint("Coincident", 0, 2, 1, 1))
sketch11.addConstraint(Sketcher.Constraint("Coincident", 1, 2, 2, 1))
sketch11.addConstraint(Sketcher.Constraint("Coincident", 2, 2, 3, 1))
sketch11.addConstraint(Sketcher.Constraint("Coincident", 3, 2, 4, 1))
sketch11.addConstraint(Sketcher.Constraint("Coincident", 4, 2, 5, 1))
sketch11.addConstraint(Sketcher.Constraint("Coincident", 5, 2, 0, 1))
sketch11.addConstraint(Sketcher.Constraint("Vertical", 0))
sketch11.addConstraint(Sketcher.Constraint("Horizontal", 1))
sketch11.addConstraint(Sketcher.Constraint("Vertical", 3))
sketch11.addConstraint(Sketcher.Constraint("Horizontal", 5))
sketch11.addConstraint(Sketcher.Constraint("Vertical", 6))
sketch11.addConstraint(Sketcher.Constraint("Coincident", 6, 1, 5, 2))
sketch11.addConstraint(Sketcher.Constraint("Perpendicular", 2, 4))
sketch11.addConstraint(Sketcher.Constraint("Horizontal", 1, 2, 6, 2))
sketch11.addConstraint(Sketcher.Constraint("Vertical", 1, 2, 4, 2))
sketch11.addConstraint(Sketcher.Constraint("Equal", 2, 4))
sketch11.addConstraint(Sketcher.Constraint("DistanceY", 0, 2, 0, 1, 6.0))
sketch11.addConstraint(Sketcher.Constraint("DistanceX", -1, 1, 0, 2, 6.0))
sketch11.addConstraint(Sketcher.Constraint("DistanceX", -1, 1, 2, 2, 8.0))
sketch11.addConstraint(Sketcher.Constraint("DistanceY", -1, 1, 0, 2, 6.5))
sketch11.addConstraint(Sketcher.Constraint("DistanceX", 1, 1, 1, 2, 1.621))
revolution3 = doc.addObject("PartDesign::Revolution", "Revolution002")
body.addObject(revolution3)
revolution3.Profile = sketch11
revolution3.ReferenceAxis = (sketch11, ["Axis0"])
revolution3.Angle = 360

# Sketch on XZ plane
sketch12 = doc.addObject("Sketcher::SketchObject", "Sketch011")
body.addObject(sketch12)
sketch12.AttachmentSupport = (doc.XZ_Plane, [""])
sketch12.MapMode = "FlatFace"
sketch12.AttachmentOffset = App.Placement(App.Vector(0, 0, -11), App.Rotation())
sketch12.addGeometry(Part.LineSegment(App.Vector(5, -0.6, 0), App.Vector(5, 0.6, 0)), False)
sketch12.addGeometry(Part.LineSegment(App.Vector(5, 0.6, 0), App.Vector(6, 1.2, 0)), False)
sketch12.addGeometry(Part.LineSegment(App.Vector(6, 1.2, 0), App.Vector(7, 0.6, 0)), False)
sketch12.addGeometry(Part.LineSegment(App.Vector(7, 0.6, 0), App.Vector(7, -0.6, 0)), False)
sketch12.addGeometry(Part.LineSegment(App.Vector(7, -0.6, 0), App.Vector(6, -1.2, 0)), False)
sketch12.addGeometry(Part.LineSegment(App.Vector(6, -1.2, 0), App.Vector(5, -0.6, 0)), False)
sketch12.addConstraint(Sketcher.Constraint("Coincident", 0, 2, 1, 1))
sketch12.addConstraint(Sketcher.Constraint("Coincident", 1, 2, 2, 1))
sketch12.addConstraint(Sketcher.Constraint("Coincident", 2, 2, 3, 1))
sketch12.addConstraint(Sketcher.Constraint("Coincident", 3, 2, 4, 1))
sketch12.addConstraint(Sketcher.Constraint("Coincident", 4, 2, 5, 1))
sketch12.addConstraint(Sketcher.Constraint("Coincident", 5, 2, 0, 1))
sketch12.addConstraint(Sketcher.Constraint("Vertical", 0))
sketch12.addConstraint(Sketcher.Constraint("Vertical", 3))
sketch12.addConstraint(Sketcher.Constraint("Symmetric", 1, 2, 4, 2, -1))
sketch12.addConstraint(Sketcher.Constraint("Parallel", 1, 4))
sketch12.addConstraint(Sketcher.Constraint("Parallel", 2, 5))
sketch12.addConstraint(Sketcher.Constraint("Horizontal", 0, 2, 2, 2))
sketch12.addConstraint(Sketcher.Constraint("Horizontal", 3, 2, 5, 2))
sketch12.addConstraint(Sketcher.Constraint("DistanceX", -1, 1, 0, 2, 5.0))
sketch12.addConstraint(Sketcher.Constraint("DistanceX", -1, 1, 1, 2, 6.0))
sketch12.addConstraint(Sketcher.Constraint("DistanceY", 0, 1, 0, 2, 1.1548))
sketch12.addConstraint(Sketcher.Constraint("DistanceY", 3, 2, 1, 2, 1.732))
pocket6 = doc.addObject("PartDesign::Pocket", "Pocket005")
body.addObject(pocket6)
pocket6.Profile = sketch12
pocket6.Length = 1.5

doc.recompute()
